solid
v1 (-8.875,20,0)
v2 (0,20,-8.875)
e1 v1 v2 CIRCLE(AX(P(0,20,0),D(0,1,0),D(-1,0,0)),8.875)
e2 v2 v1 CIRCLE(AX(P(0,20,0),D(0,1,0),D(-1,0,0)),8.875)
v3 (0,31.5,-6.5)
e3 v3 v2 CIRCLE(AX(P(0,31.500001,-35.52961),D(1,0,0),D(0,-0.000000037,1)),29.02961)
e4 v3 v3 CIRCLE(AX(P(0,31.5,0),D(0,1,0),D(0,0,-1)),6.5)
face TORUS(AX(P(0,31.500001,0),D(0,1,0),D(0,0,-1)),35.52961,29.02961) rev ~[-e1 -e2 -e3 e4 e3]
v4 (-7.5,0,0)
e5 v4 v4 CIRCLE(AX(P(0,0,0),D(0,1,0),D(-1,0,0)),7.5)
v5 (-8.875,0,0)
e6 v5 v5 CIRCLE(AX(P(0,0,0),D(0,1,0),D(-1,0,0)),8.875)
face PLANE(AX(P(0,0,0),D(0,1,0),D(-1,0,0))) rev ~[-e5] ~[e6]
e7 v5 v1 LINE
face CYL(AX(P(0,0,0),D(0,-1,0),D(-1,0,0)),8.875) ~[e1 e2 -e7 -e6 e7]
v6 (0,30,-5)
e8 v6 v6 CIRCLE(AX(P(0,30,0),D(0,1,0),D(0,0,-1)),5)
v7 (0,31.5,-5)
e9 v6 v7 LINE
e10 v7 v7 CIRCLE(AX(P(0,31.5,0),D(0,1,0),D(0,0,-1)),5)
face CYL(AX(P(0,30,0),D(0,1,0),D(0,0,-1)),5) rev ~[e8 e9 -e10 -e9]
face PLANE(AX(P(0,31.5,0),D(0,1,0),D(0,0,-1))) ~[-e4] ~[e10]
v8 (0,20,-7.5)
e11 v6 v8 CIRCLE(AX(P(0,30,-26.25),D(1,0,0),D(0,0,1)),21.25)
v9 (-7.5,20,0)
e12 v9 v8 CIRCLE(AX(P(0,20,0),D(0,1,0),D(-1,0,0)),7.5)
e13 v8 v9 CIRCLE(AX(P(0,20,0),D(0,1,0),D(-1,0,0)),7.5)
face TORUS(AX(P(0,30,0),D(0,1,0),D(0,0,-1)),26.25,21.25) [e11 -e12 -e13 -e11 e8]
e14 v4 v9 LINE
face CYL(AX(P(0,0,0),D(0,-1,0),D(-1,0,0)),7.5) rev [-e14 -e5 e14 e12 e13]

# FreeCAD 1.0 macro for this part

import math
import FreeCAD as App
import Part
import Sketcher

doc = App.newDocument("Part")
params = doc.addObject("Spreadsheet::Sheet", "Params")
for row, (alias, value) in enumerate([
    ("sketch1_diameter", "15 mm"),
    ("sketch1_diameter2", "17.75 mm"),
    ("pad1_length", "20 mm"),
    ("sketch2_width", "1.5 mm"),
    ("sketch2_radius", "21.25 mm"),
    ("revolution_angle", "360 deg"),
], start=1):
    params.set(f"A{row}", alias)
    params.set(f"B{row}", "=" + value)
    params.setAlias(f"B{row}", alias)

body = doc.addObject("PartDesign::Body", "Body")

# Sketch on XZ plane
sketch1 = body.newObject("Sketcher::SketchObject", "Sketch")
sketch1.AttachmentSupport = (doc.getObject("XZ_Plane"), [""])
sketch1.MapMode = "FlatFace"
sketch1.addGeometry(Part.Circle(App.Vector(0, 0, 0), App.Vector(0, 0, 1), 9), False)
sketch1.addGeometry(Part.Circle(App.Vector(0, 0, 0), App.Vector(0, 0, 1), 8), False)
sketch1.addConstraint(Sketcher.Constraint("Coincident", 0, 3, -1, 1))
sketch1.addConstraint(Sketcher.Constraint("Coincident", 1, 3, -1, 1))
sketch1.addConstraint(Sketcher.Constraint("Diameter", 1, 15.0))
sketch1.addConstraint(Sketcher.Constraint("Diameter", 0, 17.75))
sketch1.setExpression("Constraints[2]", "Params.sketch1_diameter")
sketch1.setExpression("Constraints[3]", "Params.sketch1_diameter2")
pad1 = body.newObject("PartDesign::Pad", "Pad")
pad1.Profile = sketch1
pad1.setExpression("Length", "Params.pad1_length")
pad1.Reversed = True

# Sketch on YZ plane
sketch2 = body.newObject("Sketcher::SketchObject", "Sketch001")
sketch2.AttachmentSupport = (doc.getObject("YZ_Plane"), [""])
sketch2.MapMode = "FlatFace"
sketch2.addGeometry(Part.LineSegment(App.Vector(31.5, -5, 0), App.Vector(30, -5, 0)), False)
sketch2.addGeometry(Part.ArcOfCircle(Part.Circle(App.Vector(30, -26.2, 0), App.Vector(0, 0, 1), 21.2), math.radians(90), math.radians(118)), False)
sketch2.addGeometry(Part.LineSegment(App.Vector(20, -7.5, 0), App.Vector(20, -8.9, 0)), False)
sketch2.addGeometry(Part.ArcOfCircle(Part.Circle(App.Vector(31.5, -35.5, 0), App.Vector(0, 0, 1), 29), math.radians(90), math.radians(113)), False)
sketch2.addGeometry(Part.LineSegment(App.Vector(31.5, -6.5, 0), App.Vector(31.5, -5, 0)), False)
sketch2.addConstraint(Sketcher.Constraint("Tangent", 0, 2, 1, 1))
sketch2.addConstraint(Sketcher.Constraint("Coincident", 1, 2, 2, 1))
sketch2.addConstraint(Sketcher.Constraint("Coincident", 2, 2, 3, 2))
sketch2.addConstraint(Sketcher.Constraint("Coincident", 3, 1, 4, 1))
sketch2.addConstraint(Sketcher.Constraint("Coincident", 4, 2, 0, 1))
sketch2.addConstraint(Sketcher.Constraint("Horizontal", 0))
sketch2.addConstraint(Sketcher.Constraint("Vertical", 2))
sketch2.addConstraint(Sketcher.Constraint("Vertical", 4))
sketch2.addConstraint(Sketcher.Constraint("Equal", 0, 4))
sketch2.addConstraint(Sketcher.Constraint("DistanceX", 0, 2, 0, 1, 1.5))
sketch2.addConstraint(Sketcher.Constraint("DistanceY", 0, 2, -1, 1, 5.0))
sketch2.addConstraint(Sketcher.Constraint("DistanceX", 1, 2, 0, 2, 10.0))
sketch2.addConstraint(Sketcher.Constraint("DistanceX", 1, 3, 3, 3, 1.5))
sketch2.addConstraint(Sketcher.Constraint("Radius", 1, 21.25))
sketch2.addConstraint(Sketcher.Constraint("DistanceX", -1, 1, 1, 3, 30.0))
sketch2.addConstraint(Sketcher.Constraint("Radius", 3, 29.0296))
sketch2.setExpression("Constraints[9]", "Params.sketch2_width")
sketch2.setExpression("Constraints[13]", "Params.sketch2_radius")
revolution = body.newObject("PartDesign::Revolution", "Revolution")
revolution.Profile = sketch2
revolution.ReferenceAxis = (sketch2, ["H_Axis"])
revolution.setExpression("Angle", "Params.revolution_angle")

doc.recompute()
